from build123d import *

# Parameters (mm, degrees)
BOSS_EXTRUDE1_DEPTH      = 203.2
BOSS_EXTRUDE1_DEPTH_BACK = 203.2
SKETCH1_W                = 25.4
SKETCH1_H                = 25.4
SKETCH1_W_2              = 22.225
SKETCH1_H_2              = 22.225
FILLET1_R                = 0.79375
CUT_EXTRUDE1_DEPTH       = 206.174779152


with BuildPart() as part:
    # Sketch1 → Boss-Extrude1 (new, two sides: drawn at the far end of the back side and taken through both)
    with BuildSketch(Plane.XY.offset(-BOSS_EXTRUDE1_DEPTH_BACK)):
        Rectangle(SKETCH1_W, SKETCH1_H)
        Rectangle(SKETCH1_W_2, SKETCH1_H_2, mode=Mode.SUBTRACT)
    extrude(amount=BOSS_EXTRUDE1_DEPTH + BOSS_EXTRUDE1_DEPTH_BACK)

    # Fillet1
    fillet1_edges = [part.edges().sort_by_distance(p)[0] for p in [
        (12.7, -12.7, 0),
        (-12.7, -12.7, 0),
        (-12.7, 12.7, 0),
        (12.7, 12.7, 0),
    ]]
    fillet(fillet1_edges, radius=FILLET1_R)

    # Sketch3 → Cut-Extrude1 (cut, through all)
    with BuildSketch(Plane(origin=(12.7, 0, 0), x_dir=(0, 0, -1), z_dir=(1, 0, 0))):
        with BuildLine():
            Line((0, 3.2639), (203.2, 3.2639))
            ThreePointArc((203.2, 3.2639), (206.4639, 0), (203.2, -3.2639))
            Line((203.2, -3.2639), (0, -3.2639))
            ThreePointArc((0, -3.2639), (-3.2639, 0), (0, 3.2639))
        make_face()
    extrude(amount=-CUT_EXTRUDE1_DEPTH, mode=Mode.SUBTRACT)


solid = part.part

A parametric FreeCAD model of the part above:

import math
import FreeCAD as App
import Part
import Sketcher

V = App.Vector
Q = App.Units.Quantity


def edges_at(feature, points):
    """Names of the edges that pass closest to the given points."""
    edges = feature.Shape.Edges
    near = lambda p: min(range(len(edges)), key=lambda i: edges[i].distToShape(Part.Vertex(*p))[0])
    return sorted({f"Edge{near(p) + 1}" for p in points})


def add_polygon(sketch, points):
    """Adds a closed chain of lines whose ends are joined by coincident constraints."""
    first, n = sketch.GeometryCount, len(points)
    for a, b in zip(points, points[1:] + points[:1]):
        sketch.addGeometry(Part.LineSegment(App.Vector(*a, 0), App.Vector(*b, 0)), False)
    for i in range(n):
        sketch.addConstraint(Sketcher.Constraint("Coincident", first + i, 2, first + (i + 1) % n, 1))

doc = App.newDocument("Part")
body = doc.addObject("PartDesign::Body", "Body")

sketch1 = body.newObject("Sketcher::SketchObject", "Sketch")
sketch1.AttachmentSupport = (doc.getObject("XY_Plane"), [""])
sketch1.MapMode = "FlatFace"
add_polygon(sketch1, [(-13, 13), (-13, -13), (13, -13), (13, 13)])
add_polygon(sketch1, [(11, -11), (-11, -11), (-11, 11), (11, 11)])
sketch1.addConstraint(Sketcher.Constraint("Vertical", 0))
sketch1.addConstraint(Sketcher.Constraint("Horizontal", 1))
sketch1.addConstraint(Sketcher.Constraint("Vertical", 2))
sketch1.addConstraint(Sketcher.Constraint("Horizontal", 3))
sketch1.addConstraint(Sketcher.Constraint("Horizontal", 4))
sketch1.addConstraint(Sketcher.Constraint("Vertical", 5))
sketch1.addConstraint(Sketcher.Constraint("Horizontal", 6))
sketch1.addConstraint(Sketcher.Constraint("Vertical", 7))
sketch1.addConstraint(Sketcher.Constraint("Symmetric", 0, 2, 2, 2, -1, 1))
sketch1.addConstraint(Sketcher.Constraint("Symmetric", 4, 2, 6, 2, -1, 1))
sketch1.addConstraint(Sketcher.Constraint("Equal", 3, 0))
sketch1.addConstraint(Sketcher.Constraint("Equal", 6, 5))
sketch1.addConstraint(Sketcher.Constraint("DistanceX", 1, 1, 1, 2, Q("1 in")))
sketch1.addConstraint(Sketcher.Constraint("DistanceX", 4, 2, 4, 1, Q("0.875 in")))
pad1 = body.newObject("PartDesign::Pad", "Pad")
pad1.Profile = sketch1
pad1.Type = "TwoLengths"
pad1.Length = Q("8 in")
pad1.Length2 = Q("8 in")
doc.recompute()

fillet = body.newObject("PartDesign::Fillet", "Fillet")
fillet.Base = (pad1, edges_at(pad1, [
    (12.7, -12.7, 0),
    (-12.7, -12.7, 0),
    (-12.7, 12.7, 0),
    (12.7, 12.7, 0),
]))
fillet.Radius = Q("0.03125 in")

sketch2 = body.newObject("Sketcher::SketchObject", "Sketch001")
sketch2.AttachmentSupport = (doc.getObject("YZ_Plane"), [""])
sketch2.MapMode = "FlatFace"
sketch2.AttachmentOffset = App.Placement(V(0, 0, 0.5 * 25.4), App.Rotation())
sketch2.addGeometry(Part.LineSegment(V(3.3, -203.2, 0), V(3.3, 0, 0)), False)
sketch2.addGeometry(Part.ArcOfCircle(Part.Circle(V(0, 0, 0), V(0, 0, 1), 3.3), math.radians(0), math.radians(180)), False)
sketch2.addGeometry(Part.LineSegment(V(-3.3, 0, 0), V(-3.3, -203.2, 0)), False)
sketch2.addGeometry(Part.ArcOfCircle(Part.Circle(V(0, -203.2, 0), V(0, 0, 1), 3.3), math.radians(180), math.radians(360)), False)
sketch2.addConstraint(Sketcher.Constraint("Tangent", 0, 2, 1, 1))
sketch2.addConstraint(Sketcher.Constraint("Tangent", 1, 2, 2, 1))
sketch2.addConstraint(Sketcher.Constraint("Tangent", 2, 2, 3, 1))
sketch2.addConstraint(Sketcher.Constraint("Tangent", 3, 2, 0, 1))
sketch2.addConstraint(Sketcher.Constraint("Vertical", 0))
sketch2.addConstraint(Sketcher.Constraint("Vertical", 2))
sketch2.addConstraint(Sketcher.Constraint("Coincident", 1, 3, -1, 1))
sketch2.addConstraint(Sketcher.Constraint("DistanceY", 0, 1, 0, 2, Q("8 in")))
sketch2.addConstraint(Sketcher.Constraint("Radius", 1, Q("0.1285 in")))
pocket1 = body.newObject("PartDesign::Pocket", "Pocket")
pocket1.Profile = sketch2
pocket1.Type = "ThroughAll"

doc.recompute()
